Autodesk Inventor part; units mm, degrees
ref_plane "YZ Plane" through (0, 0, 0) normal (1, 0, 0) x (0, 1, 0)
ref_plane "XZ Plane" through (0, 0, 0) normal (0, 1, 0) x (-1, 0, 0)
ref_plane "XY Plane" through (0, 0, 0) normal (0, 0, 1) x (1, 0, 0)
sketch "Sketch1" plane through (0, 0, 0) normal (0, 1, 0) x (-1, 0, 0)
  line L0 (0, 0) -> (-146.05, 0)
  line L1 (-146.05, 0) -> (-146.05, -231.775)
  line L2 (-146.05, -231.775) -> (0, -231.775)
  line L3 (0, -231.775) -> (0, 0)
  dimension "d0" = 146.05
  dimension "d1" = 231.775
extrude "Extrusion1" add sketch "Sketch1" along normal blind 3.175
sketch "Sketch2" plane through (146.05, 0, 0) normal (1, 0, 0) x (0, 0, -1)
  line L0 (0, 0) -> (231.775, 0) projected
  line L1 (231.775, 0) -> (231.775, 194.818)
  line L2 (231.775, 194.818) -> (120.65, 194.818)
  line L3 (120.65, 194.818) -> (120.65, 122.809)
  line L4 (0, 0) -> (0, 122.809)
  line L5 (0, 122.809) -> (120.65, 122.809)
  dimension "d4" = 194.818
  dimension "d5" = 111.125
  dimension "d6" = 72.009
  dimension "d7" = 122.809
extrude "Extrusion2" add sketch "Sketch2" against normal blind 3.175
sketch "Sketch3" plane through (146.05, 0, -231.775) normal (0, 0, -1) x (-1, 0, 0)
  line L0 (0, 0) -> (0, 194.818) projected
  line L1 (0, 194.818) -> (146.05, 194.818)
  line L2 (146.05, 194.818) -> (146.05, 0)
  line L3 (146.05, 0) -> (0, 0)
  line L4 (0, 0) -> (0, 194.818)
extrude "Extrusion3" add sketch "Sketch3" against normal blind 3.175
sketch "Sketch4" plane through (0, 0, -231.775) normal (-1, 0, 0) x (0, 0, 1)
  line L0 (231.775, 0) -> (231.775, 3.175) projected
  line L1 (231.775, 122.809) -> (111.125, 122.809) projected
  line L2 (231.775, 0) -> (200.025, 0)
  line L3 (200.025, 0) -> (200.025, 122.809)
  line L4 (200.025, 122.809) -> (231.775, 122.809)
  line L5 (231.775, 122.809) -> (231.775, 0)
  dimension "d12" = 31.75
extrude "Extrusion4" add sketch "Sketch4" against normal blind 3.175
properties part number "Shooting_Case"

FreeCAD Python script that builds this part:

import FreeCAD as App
import Part
import Sketcher
Q = App.Units.Quantity


def add_polygon(sketch, points):
    """Adds a closed chain of lines whose ends are joined by coincident constraints."""
    first, n = sketch.GeometryCount, len(points)
    for a, b in zip(points, points[1:] + points[:1]):
        sketch.addGeometry(Part.LineSegment(App.Vector(*a, 0), App.Vector(*b, 0)), False)
    for i in range(n):
        sketch.addConstraint(Sketcher.Constraint("Coincident", first + i, 2, first + (i + 1) % n, 1))

doc = App.newDocument("Part")
body = doc.addObject("PartDesign::Body", "Body")

sketch1 = body.newObject("Sketcher::SketchObject", "Sketch")
sketch1.AttachmentSupport = (doc.getObject("XZ_Plane"), [""])
sketch1.MapMode = "FlatFace"
add_polygon(sketch1, [(0, -232), (0, 0), (146, 0), (146, -232)])
sketch1.addConstraint([
    Sketcher.Constraint("Vertical", 0),
    Sketcher.Constraint("Horizontal", 1),
    Sketcher.Constraint("Vertical", 2),
    Sketcher.Constraint("Horizontal", 3),
    Sketcher.Constraint("Coincident", 0, 2, -1, 1),
    Sketcher.Constraint("DistanceX", 1, 1, 1, 2, Q("5.75 in")),
    Sketcher.Constraint("DistanceY", 0, 1, 0, 2, Q("9.125 in")),
])
pad1 = body.newObject("PartDesign::Pad", "Pad")
pad1.Profile = sketch1
pad1.Length = Q("0.125 in")
pad1.Reversed = True

sketch2 = body.newObject("Sketcher::SketchObject", "Sketch001")
sketch2.AttachmentSupport = (doc.getObject("YZ_Plane"), [""])
sketch2.MapMode = "FlatFace"
sketch2.AttachmentOffset = App.Placement(App.Vector(0, 0, 5.75 * 25.4), App.Rotation())
add_polygon(sketch2, [(123, 0), (0, 0), (0, -232), (195, -232), (195, -121), (123, -121)])
sketch2.addConstraint([
    Sketcher.Constraint("Horizontal", 0),
    Sketcher.Constraint("Vertical", 1),
    Sketcher.Constraint("Horizontal", 2),
    Sketcher.Constraint("Vertical", 3),
    Sketcher.Constraint("Horizontal", 4),
    Sketcher.Constraint("Vertical", 5),
    Sketcher.Constraint("Coincident", 0, 2, -1, 1),
    Sketcher.Constraint("DistanceX", 2, 1, 2, 2, Q("7.67 in")),
    Sketcher.Constraint("DistanceX", 0, 2, 0, 1, Q("4.835 in")),
    Sketcher.Constraint("DistanceY", 3, 1, 3, 2, Q("4.375 in")),
    Sketcher.Constraint("DistanceY", 5, 1, 5, 2, Q("4.75 in")),
])
pad2 = body.newObject("PartDesign::Pad", "Pad001")
pad2.Profile = sketch2
pad2.Length = Q("0.125 in")
pad2.Reversed = True

sketch3 = body.newObject("Sketcher::SketchObject", "Sketch002")
sketch3.AttachmentSupport = (doc.getObject("XY_Plane"), [""])
sketch3.MapMode = "FlatFace"
sketch3.AttachmentOffset = App.Placement(App.Vector(0, 0, -9.125 * 25.4), App.Rotation())
add_polygon(sketch3, [(146, 195), (146, 0), (0, 0), (0, 195)])
sketch3.addConstraint([
    Sketcher.Constraint("Vertical", 0),
    Sketcher.Constraint("Horizontal", 1),
    Sketcher.Constraint("Vertical", 2),
    Sketcher.Constraint("Horizontal", 3),
    Sketcher.Constraint("Coincident", 1, 2, -1, 1),
    Sketcher.Constraint("DistanceX", 1, 2, 1, 1, Q("5.75 in")),
    Sketcher.Constraint("DistanceY", 0, 2, 0, 1, Q("7.67 in")),
])
pad3 = body.newObject("PartDesign::Pad", "Pad002")
pad3.Profile = sketch3
pad3.Length = Q("0.125 in")

sketch4 = body.newObject("Sketcher::SketchObject", "Sketch003")
sketch4.AttachmentSupport = (doc.getObject("YZ_Plane"), [""])
sketch4.MapMode = "FlatFace"
add_polygon(sketch4, [(0, -32), (0, 0), (123, 0), (123, -32)])
sketch4.addConstraint([
    Sketcher.Constraint("Vertical", 0),
    Sketcher.Constraint("Horizontal", 1),
    Sketcher.Constraint("Vertical", 2),
    Sketcher.Constraint("Horizontal", 3),
    Sketcher.Constraint("Coincident", 0, 2, -1, 1),
    Sketcher.Constraint("DistanceY", 0, 1, 0, 2, Q("1.25 in")),
    Sketcher.Constraint("DistanceX", 1, 1, 1, 2, Q("4.835 in")),
])
pad4 = body.newObject("PartDesign::Pad", "Pad003")
pad4.Profile = sketch4
pad4.Length = Q("0.125 in")

doc.recompute()
